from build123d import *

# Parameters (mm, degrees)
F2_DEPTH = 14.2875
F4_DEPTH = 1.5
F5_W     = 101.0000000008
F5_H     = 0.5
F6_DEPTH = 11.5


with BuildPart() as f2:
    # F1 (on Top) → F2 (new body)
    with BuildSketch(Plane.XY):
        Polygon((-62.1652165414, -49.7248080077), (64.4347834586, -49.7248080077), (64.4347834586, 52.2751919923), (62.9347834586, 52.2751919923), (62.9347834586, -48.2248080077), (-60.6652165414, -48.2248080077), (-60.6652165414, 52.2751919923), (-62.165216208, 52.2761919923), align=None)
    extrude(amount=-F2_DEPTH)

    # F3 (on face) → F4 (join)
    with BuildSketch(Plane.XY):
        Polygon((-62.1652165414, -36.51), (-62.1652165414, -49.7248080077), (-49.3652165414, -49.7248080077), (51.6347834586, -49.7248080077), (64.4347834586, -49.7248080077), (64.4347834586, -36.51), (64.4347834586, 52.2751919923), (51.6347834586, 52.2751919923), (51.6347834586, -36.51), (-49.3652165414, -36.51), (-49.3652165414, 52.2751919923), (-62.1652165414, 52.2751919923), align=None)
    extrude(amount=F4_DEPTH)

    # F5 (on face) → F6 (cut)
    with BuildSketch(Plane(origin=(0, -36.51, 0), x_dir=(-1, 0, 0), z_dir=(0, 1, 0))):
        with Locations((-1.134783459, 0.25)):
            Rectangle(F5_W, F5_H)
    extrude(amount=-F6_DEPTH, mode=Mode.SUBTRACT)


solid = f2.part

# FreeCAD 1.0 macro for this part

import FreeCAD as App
import Part
import Sketcher

doc = App.newDocument("Part")
params = doc.addObject("Spreadsheet::Sheet", "Params")
for row, (alias, value) in enumerate([
    ("sketch1_height", "102 mm"),
    ("sketch1_width", "126.6 mm"),
    ("sketch1_width2", "1.5 mm"),
    ("sketch1_width3", "123.6 mm"),
    ("sketch1_height2", "100.5 mm"),
    ("pad1_length", "14.2875 mm"),
    ("sketch2_width", "101 mm"),
    ("sketch2_height", "102 mm"),
    ("sketch2_width2", "126.6 mm"),
    ("pad2_length", "1.5 mm"),
    ("sketch3_width", "101 mm"),
    ("sketch3_height", "0.5 mm"),
    ("pocket1_length", "11.5 mm"),
], start=1):
    params.set(f"A{row}", alias)
    params.set(f"B{row}", "=" + value)
    params.setAlias(f"B{row}", alias)

body = doc.addObject("PartDesign::Body", "Body")

# Sketch on XY plane
sketch1 = body.newObject("Sketcher::SketchObject", "Sketch")
sketch1.AttachmentSupport = (doc.getObject("XY_Plane"), [""])
sketch1.MapMode = "FlatFace"
sketch1.addGeometry([
    Part.LineSegment(App.Vector(-62.165217, -49.724808, 0), App.Vector(64.434783, -49.724808, 0)),  # 0
    Part.LineSegment(App.Vector(64.434783, -49.724808, 0), App.Vector(64.434783, 52.275192, 0)),  # 1
    Part.LineSegment(App.Vector(64.434783, 52.275192, 0), App.Vector(62.934783, 52.275192, 0)),  # 2
    Part.LineSegment(App.Vector(62.934783, 52.275192, 0), App.Vector(62.934783, -48.224808, 0)),  # 3
    Part.LineSegment(App.Vector(62.934783, -48.224808, 0), App.Vector(-60.665217, -48.224808, 0)),  # 4
    Part.LineSegment(App.Vector(-60.665217, -48.224808, 0), App.Vector(-60.665217, 52.275192, 0)),  # 5
    Part.LineSegment(App.Vector(-60.665217, 52.275192, 0), App.Vector(-62.165216, 52.276192, 0)),  # 6
    Part.LineSegment(App.Vector(-62.165216, 52.276192, 0), App.Vector(-62.165217, -49.724808, 0)),  # 7
], False)
sketch1.addConstraint([
    Sketcher.Constraint("Coincident", 0, 2, 1, 1),
    Sketcher.Constraint("Coincident", 1, 2, 2, 1),
    Sketcher.Constraint("Coincident", 2, 2, 3, 1),
    Sketcher.Constraint("Coincident", 3, 2, 4, 1),
    Sketcher.Constraint("Coincident", 4, 2, 5, 1),
    Sketcher.Constraint("Coincident", 5, 2, 6, 1),
    Sketcher.Constraint("Coincident", 6, 2, 7, 1),
    Sketcher.Constraint("Coincident", 7, 2, 0, 1),
    Sketcher.Constraint("Horizontal", 0),
    Sketcher.Constraint("Vertical", 1),
    Sketcher.Constraint("Horizontal", 2),
    Sketcher.Constraint("Vertical", 3),
    Sketcher.Constraint("Horizontal", 4),
    Sketcher.Constraint("Vertical", 5),
    Sketcher.Constraint("Vertical", 7),
    Sketcher.Constraint("Horizontal", 2, 2, 5, 2),
    Sketcher.Constraint("DistanceY", 1, 1, 1, 2, 102.0),
    Sketcher.Constraint("DistanceX", 0, 1, 0, 2, 126.6),
    Sketcher.Constraint("DistanceX", 2, 2, 2, 1, 1.5),
    Sketcher.Constraint("DistanceX", 4, 2, 4, 1, 123.6),
    Sketcher.Constraint("DistanceY", 3, 2, 3, 1, 100.5),
    Sketcher.Constraint("DistanceY", 7, 2, 7, 1, 102.001),
    Sketcher.Constraint("DistanceY", 0, 2, -1, 1, 49.724808),
    Sketcher.Constraint("DistanceX", -1, 1, 0, 2, 64.434783),
])
sketch1.setExpression("Constraints[16]", "Params.sketch1_height")
sketch1.setExpression("Constraints[17]", "Params.sketch1_width")
sketch1.setExpression("Constraints[18]", "Params.sketch1_width2")
sketch1.setExpression("Constraints[19]", "Params.sketch1_width3")
sketch1.setExpression("Constraints[20]", "Params.sketch1_height2")
pad1 = body.newObject("PartDesign::Pad", "Pad")
pad1.Profile = sketch1
pad1.setExpression("Length", "Params.pad1_length")
pad1.Reversed = True

# Sketch on XY plane
sketch2 = body.newObject("Sketcher::SketchObject", "Sketch001")
sketch2.AttachmentSupport = (doc.getObject("XY_Plane"), [""])
sketch2.MapMode = "FlatFace"
sketch2.addGeometry([
    Part.LineSegment(App.Vector(-62.165217, -49.724808, 0), App.Vector(64.434783, -49.724808, 0)),  # 0
    Part.LineSegment(App.Vector(64.434783, -49.724808, 0), App.Vector(64.434783, 52.275192, 0)),  # 1
    Part.LineSegment(App.Vector(64.434783, 52.275192, 0), App.Vector(51.634783, 52.275192, 0)),  # 2
    Part.LineSegment(App.Vector(51.634783, 52.275192, 0), App.Vector(51.634783, -36.51, 0)),  # 3
    Part.LineSegment(App.Vector(51.634783, -36.51, 0), App.Vector(-49.365217, -36.51, 0)),  # 4
    Part.LineSegment(App.Vector(-49.365217, -36.51, 0), App.Vector(-49.365217, 52.275192, 0)),  # 5
    Part.LineSegment(App.Vector(-49.365217, 52.275192, 0), App.Vector(-62.165217, 52.275192, 0)),  # 6
    Part.LineSegment(App.Vector(-62.165217, 52.275192, 0), App.Vector(-62.165217, -49.724808, 0)),  # 7
], False)
sketch2.addConstraint([
    Sketcher.Constraint("Coincident", 0, 2, 1, 1),
    Sketcher.Constraint("Coincident", 1, 2, 2, 1),
    Sketcher.Constraint("Coincident", 2, 2, 3, 1),
    Sketcher.Constraint("Coincident", 3, 2, 4, 1),
    Sketcher.Constraint("Coincident", 4, 2, 5, 1),
    Sketcher.Constraint("Coincident", 5, 2, 6, 1),
    Sketcher.Constraint("Coincident", 6, 2, 7, 1),
    Sketcher.Constraint("Coincident", 7, 2, 0, 1),
    Sketcher.Constraint("Horizontal", 0),
    Sketcher.Constraint("Vertical", 1),
    Sketcher.Constraint("Horizontal", 2),
    Sketcher.Constraint("Vertical", 3),
    Sketcher.Constraint("Horizontal", 4),
    Sketcher.Constraint("Vertical", 5),
    Sketcher.Constraint("Horizontal", 6),
    Sketcher.Constraint("Vertical", 7),
    Sketcher.Constraint("Horizontal", 2, 2, 5, 2),
    Sketcher.Constraint("Equal", 2, 6),
    Sketcher.Constraint("DistanceX", 4, 2, 4, 1, 101.0),
    Sketcher.Constraint("DistanceY", 1, 1, 1, 2, 102.0),
    Sketcher.Constraint("DistanceX", 0, 1, 0, 2, 126.6),
    Sketcher.Constraint("DistanceY", 3, 2, -1, 1, 36.51),
    Sketcher.Constraint("DistanceY", 3, 2, 3, 1, 88.785192),
    Sketcher.Constraint("DistanceX", -1, 1, 0, 2, 64.434783),
])
sketch2.setExpression("Constraints[18]", "Params.sketch2_width")
sketch2.setExpression("Constraints[19]", "Params.sketch2_height")
sketch2.setExpression("Constraints[20]", "Params.sketch2_width2")
pad2 = body.newObject("PartDesign::Pad", "Pad001")
pad2.Profile = sketch2
pad2.setExpression("Length", "Params.pad2_length")

# Sketch on XZ plane
sketch3 = body.newObject("Sketcher::SketchObject", "Sketch002")
sketch3.AttachmentSupport = (doc.getObject("XZ_Plane"), [""])
sketch3.MapMode = "FlatFace"
sketch3.AttachmentOffset = App.Placement(App.Vector(0, 0, 36.51), App.Rotation())
sketch3.addGeometry([
    Part.LineSegment(App.Vector(51.634783, 0.5, 0), App.Vector(51.634783, 0, 0)),
    Part.LineSegment(App.Vector(51.634783, 0, 0), App.Vector(-49.365217, 0, 0)),
    Part.LineSegment(App.Vector(-49.365217, 0, 0), App.Vector(-49.365217, 0.5, 0)),
    Part.LineSegment(App.Vector(-49.365217, 0.5, 0), App.Vector(51.634783, 0.5, 0)),
], False)
sketch3.addConstraint([
    Sketcher.Constraint("Coincident", 0, 2, 1, 1),
    Sketcher.Constraint("Coincident", 1, 2, 2, 1),
    Sketcher.Constraint("Coincident", 2, 2, 3, 1),
    Sketcher.Constraint("Coincident", 3, 2, 0, 1),
    Sketcher.Constraint("Vertical", 0),
    Sketcher.Constraint("Horizontal", 1),
    Sketcher.Constraint("Vertical", 2),
    Sketcher.Constraint("Horizontal", 3),
    Sketcher.Constraint("PointOnObject", 0, 2, -1),
    Sketcher.Constraint("DistanceX", 1, 2, 1, 1, 101.0),
    Sketcher.Constraint("DistanceY", 0, 2, 0, 1, 0.5),
    Sketcher.Constraint("DistanceX", -1, 1, 0, 2, 51.634783),
])
sketch3.setExpression("Constraints[9]", "Params.sketch3_width")
sketch3.setExpression("Constraints[10]", "Params.sketch3_height")
pocket1 = body.newObject("PartDesign::Pocket", "Pocket")
pocket1.Profile = sketch3
pocket1.setExpression("Length", "Params.pocket1_length")
pocket1.Reversed = True

doc.recompute()
